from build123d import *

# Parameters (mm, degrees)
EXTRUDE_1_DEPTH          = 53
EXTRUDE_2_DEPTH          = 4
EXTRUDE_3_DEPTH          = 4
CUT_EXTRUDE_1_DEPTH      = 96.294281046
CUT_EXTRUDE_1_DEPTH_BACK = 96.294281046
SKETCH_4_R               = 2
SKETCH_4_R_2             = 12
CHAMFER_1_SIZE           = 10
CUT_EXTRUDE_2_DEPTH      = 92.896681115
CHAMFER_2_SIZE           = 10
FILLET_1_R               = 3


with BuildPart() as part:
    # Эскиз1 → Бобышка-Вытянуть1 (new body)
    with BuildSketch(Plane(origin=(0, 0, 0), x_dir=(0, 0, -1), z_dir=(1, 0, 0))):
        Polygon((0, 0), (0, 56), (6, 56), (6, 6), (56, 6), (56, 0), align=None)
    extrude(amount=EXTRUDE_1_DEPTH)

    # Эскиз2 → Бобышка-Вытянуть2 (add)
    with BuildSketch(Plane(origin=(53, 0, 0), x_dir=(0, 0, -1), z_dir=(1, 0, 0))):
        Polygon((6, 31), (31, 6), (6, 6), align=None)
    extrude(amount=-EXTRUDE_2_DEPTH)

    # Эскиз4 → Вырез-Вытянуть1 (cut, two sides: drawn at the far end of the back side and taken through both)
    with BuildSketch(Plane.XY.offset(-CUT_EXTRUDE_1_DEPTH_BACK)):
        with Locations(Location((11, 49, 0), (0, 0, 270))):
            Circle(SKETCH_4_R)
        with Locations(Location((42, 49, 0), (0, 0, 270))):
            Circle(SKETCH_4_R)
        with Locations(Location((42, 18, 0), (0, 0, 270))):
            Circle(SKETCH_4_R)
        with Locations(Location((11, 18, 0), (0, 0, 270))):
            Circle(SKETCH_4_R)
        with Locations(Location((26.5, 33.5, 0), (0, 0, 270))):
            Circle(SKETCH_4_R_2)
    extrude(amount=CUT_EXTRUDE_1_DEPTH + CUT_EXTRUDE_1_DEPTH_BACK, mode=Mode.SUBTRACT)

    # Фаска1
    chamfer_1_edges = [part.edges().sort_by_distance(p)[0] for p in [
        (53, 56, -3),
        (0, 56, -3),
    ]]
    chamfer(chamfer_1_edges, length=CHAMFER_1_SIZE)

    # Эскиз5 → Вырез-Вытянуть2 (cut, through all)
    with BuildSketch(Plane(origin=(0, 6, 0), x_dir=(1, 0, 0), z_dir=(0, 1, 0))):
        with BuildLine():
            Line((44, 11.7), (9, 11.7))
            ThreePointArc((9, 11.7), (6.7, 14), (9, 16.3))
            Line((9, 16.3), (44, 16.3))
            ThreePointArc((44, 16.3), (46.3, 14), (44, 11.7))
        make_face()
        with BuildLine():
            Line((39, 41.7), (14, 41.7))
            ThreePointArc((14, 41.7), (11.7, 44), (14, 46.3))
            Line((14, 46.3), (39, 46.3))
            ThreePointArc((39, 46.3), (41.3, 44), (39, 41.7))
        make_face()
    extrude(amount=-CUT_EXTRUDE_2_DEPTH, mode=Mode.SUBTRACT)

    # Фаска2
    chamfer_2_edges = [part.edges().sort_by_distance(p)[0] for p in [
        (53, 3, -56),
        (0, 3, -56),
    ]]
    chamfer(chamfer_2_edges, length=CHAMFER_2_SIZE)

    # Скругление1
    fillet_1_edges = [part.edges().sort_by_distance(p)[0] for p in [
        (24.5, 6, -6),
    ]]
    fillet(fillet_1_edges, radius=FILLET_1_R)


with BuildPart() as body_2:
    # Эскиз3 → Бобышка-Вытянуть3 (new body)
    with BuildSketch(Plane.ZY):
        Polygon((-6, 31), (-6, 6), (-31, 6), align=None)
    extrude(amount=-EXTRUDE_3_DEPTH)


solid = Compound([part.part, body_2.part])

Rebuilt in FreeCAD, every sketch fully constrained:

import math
import FreeCAD as App
import Part
import Sketcher

V = App.Vector
Q = App.Units.Quantity


def edges_at(feature, points):
    """Names of the edges that pass closest to the given points."""
    edges = feature.Shape.Edges
    near = lambda p: min(range(len(edges)), key=lambda i: edges[i].distToShape(Part.Vertex(*p))[0])
    return sorted({f"Edge{near(p) + 1}" for p in points})


def add_polygon(sketch, points):
    """Adds a closed chain of lines whose ends are joined by coincident constraints."""
    first, n = sketch.GeometryCount, len(points)
    for a, b in zip(points, points[1:] + points[:1]):
        sketch.addGeometry(Part.LineSegment(App.Vector(*a, 0), App.Vector(*b, 0)), False)
    for i in range(n):
        sketch.addConstraint(Sketcher.Constraint("Coincident", first + i, 2, first + (i + 1) % n, 1))

doc = App.newDocument("Part")
body = doc.addObject("PartDesign::Body", "Body")

sketch1 = body.newObject("Sketcher::SketchObject", "Sketch")
sketch1.AttachmentSupport = (doc.getObject("YZ_Plane"), [""])
sketch1.MapMode = "FlatFace"
add_polygon(sketch1, [(56, 0), (0, 0), (0, -56), (6, -56), (6, -6), (56, -6)])
sketch1.addConstraint([
    Sketcher.Constraint("Horizontal", 0),
    Sketcher.Constraint("Vertical", 1),
    Sketcher.Constraint("Horizontal", 2),
    Sketcher.Constraint("Vertical", 3),
    Sketcher.Constraint("Horizontal", 4),
    Sketcher.Constraint("Vertical", 5),
    Sketcher.Constraint("Coincident", 0, 2, -1, 1),
    Sketcher.Constraint("Equal", 0, 1),
    Sketcher.Constraint("Equal", 4, 3),
    Sketcher.Constraint("DistanceX", 0, 2, 0, 1, Q("56 mm")),
    Sketcher.Constraint("DistanceX", 2, 1, 2, 2, Q("6 mm")),
])
pad1 = body.newObject("PartDesign::Pad", "Pad")
pad1.Profile = sketch1
pad1.Length = 53

sketch2 = body.newObject("Sketcher::SketchObject", "Sketch001")
sketch2.AttachmentSupport = (doc.getObject("YZ_Plane"), [""])
sketch2.MapMode = "FlatFace"
sketch2.AttachmentOffset = App.Placement(V(0, 0, 53), App.Rotation())
add_polygon(sketch2, [(6, -31), (31, -6), (6, -6)])
sketch2.addConstraint([
    Sketcher.Constraint("Horizontal", 1),
    Sketcher.Constraint("Vertical", 2),
    Sketcher.Constraint("Equal", 1, 2),
    Sketcher.Constraint("DistanceX", 1, 2, 1, 1, Q("25 mm")),
    Sketcher.Constraint("DistanceX", -1, 1, 0, 2, Q("31 mm")),
    Sketcher.Constraint("DistanceY", 0, 2, -1, 1, Q("6 mm")),
])
pad2 = body.newObject("PartDesign::Pad", "Pad001")
pad2.Profile = sketch2
pad2.Length = 4
pad2.Reversed = True

sketch3 = body.newObject("Sketcher::SketchObject", "Sketch002")
sketch3.AttachmentSupport = (doc.getObject("XY_Plane"), [""])
sketch3.MapMode = "FlatFace"
sketch3.addGeometry([
    Part.Circle(V(11, 49, 0), V(0, 0, 1), 2),
    Part.Circle(V(42, 49, 0), V(0, 0, 1), 2),
    Part.Circle(V(42, 18, 0), V(0, 0, 1), 2),
    Part.Circle(V(11, 18, 0), V(0, 0, 1), 2),
    Part.Circle(V(26.5, 33.5, 0), V(0, 0, 1), 12),
], False)
sketch3.addConstraint([
    Sketcher.Constraint("Equal", 0, 1),
    Sketcher.Constraint("Equal", 1, 2),
    Sketcher.Constraint("Equal", 2, 3),
    Sketcher.Constraint("Horizontal", 0, 3, 1, 3),
    Sketcher.Constraint("Horizontal", 2, 3, 3, 3),
    Sketcher.Constraint("Vertical", 1, 3, 2, 3),
    Sketcher.Constraint("Vertical", 0, 3, 3, 3),
    Sketcher.Constraint("Diameter", 0, Q("4 mm")),
    Sketcher.Constraint("Diameter", 4, Q("24 mm")),
    Sketcher.Constraint("DistanceX", -1, 1, 0, 3, Q("11 mm")),
    Sketcher.Constraint("DistanceY", -1, 1, 0, 3, Q("49 mm")),
    Sketcher.Constraint("DistanceX", -1, 1, 1, 3, Q("42 mm")),
    Sketcher.Constraint("DistanceY", -1, 1, 2, 3, Q("18 mm")),
    Sketcher.Constraint("DistanceX", -1, 1, 4, 3, Q("26.5 mm")),
    Sketcher.Constraint("DistanceY", -1, 1, 4, 3, Q("33.5 mm")),
])
pocket1 = body.newObject("PartDesign::Pocket", "Pocket")
pocket1.Profile = sketch3
pocket1.Type = "ThroughAll"
pocket1.Midplane = True
doc.recompute()

chamfer = body.newObject("PartDesign::Chamfer", "Chamfer")
chamfer.Base = (pocket1, edges_at(pocket1, [(53, 56, -3), (0, 56, -3)]))
chamfer.Size = 10

sketch4 = body.newObject("Sketcher::SketchObject", "Sketch003")
sketch4.AttachmentSupport = (doc.getObject("XZ_Plane"), [""])
sketch4.MapMode = "FlatFace"
sketch4.AttachmentOffset = App.Placement(V(0, 0, -6), App.Rotation())
sketch4.addGeometry([
    Part.LineSegment(V(9, -11.7, 0), V(44, -11.7, 0)),
    Part.ArcOfCircle(Part.Circle(V(44, -14, 0), V(0, 0, 1), 2.3), math.radians(-90), math.radians(90)),
    Part.LineSegment(V(44, -16.3, 0), V(9, -16.3, 0)),
    Part.ArcOfCircle(Part.Circle(V(9, -14, 0), V(0, 0, 1), 2.3), math.radians(90), math.radians(270)),
    Part.LineSegment(V(14, -41.7, 0), V(39, -41.7, 0)),
    Part.ArcOfCircle(Part.Circle(V(39, -44, 0), V(0, 0, 1), 2.3), math.radians(-90), math.radians(90)),
    Part.LineSegment(V(39, -46.3, 0), V(14, -46.3, 0)),
    Part.ArcOfCircle(Part.Circle(V(14, -44, 0), V(0, 0, 1), 2.3), math.radians(90), math.radians(270)),
], False)
sketch4.addConstraint([
    Sketcher.Constraint("Tangent", 0, 2, 1, 2),
    Sketcher.Constraint("Tangent", 1, 1, 2, 1),
    Sketcher.Constraint("Tangent", 2, 2, 3, 2),
    Sketcher.Constraint("Tangent", 3, 1, 0, 1),
    Sketcher.Constraint("Tangent", 4, 2, 5, 2),
    Sketcher.Constraint("Tangent", 5, 1, 6, 1),
    Sketcher.Constraint("Tangent", 6, 2, 7, 2),
    Sketcher.Constraint("Tangent", 7, 1, 4, 1),
    Sketcher.Constraint("Horizontal", 0),
    Sketcher.Constraint("Horizontal", 2),
    Sketcher.Constraint("Horizontal", 4),
    Sketcher.Constraint("Horizontal", 6),
    Sketcher.Constraint("Equal", 3, 5),
    Sketcher.Constraint("Radius", 1, Q("2.3 mm")),
    Sketcher.Constraint("DistanceX", 0, 1, 0, 2, Q("35 mm")),
    Sketcher.Constraint("DistanceX", 4, 1, 4, 2, Q("25 mm")),
    Sketcher.Constraint("DistanceX", -1, 1, 1, 3, Q("44 mm")),
    Sketcher.Constraint("DistanceY", 1, 3, -1, 1, Q("14 mm")),
    Sketcher.Constraint("DistanceX", -1, 1, 5, 3, Q("39 mm")),
    Sketcher.Constraint("DistanceY", 5, 3, -1, 1, Q("44 mm")),
])
pocket2 = body.newObject("PartDesign::Pocket", "Pocket001")
pocket2.Profile = sketch4
pocket2.Type = "ThroughAll"
pocket2.Reversed = True
doc.recompute()

chamfer2 = body.newObject("PartDesign::Chamfer", "Chamfer001")
chamfer2.Base = (pocket2, edges_at(pocket2, [(53, 3, -56), (0, 3, -56)]))
chamfer2.Size = 10
doc.recompute()

fillet = body.newObject("PartDesign::Fillet", "Fillet")
fillet.Base = (chamfer2, edges_at(chamfer2, [(24.5, 6, -6)]))
fillet.Radius = 3
body2 = doc.addObject("PartDesign::Body", "Body001")

sketch5 = body2.newObject("Sketcher::SketchObject", "Sketch004")
sketch5.AttachmentSupport = (doc.getObject("YZ_Plane001"), [""])
sketch5.MapMode = "FlatFace"
add_polygon(sketch5, [(6, -6), (31, -6), (6, -31)])
sketch5.addConstraint([
    Sketcher.Constraint("Horizontal", 0),
    Sketcher.Constraint("Vertical", 2),
    Sketcher.Constraint("Equal", 0, 2),
    Sketcher.Constraint("DistanceX", 0, 1, 0, 2, Q("25 mm")),
    Sketcher.Constraint("DistanceX", -1, 1, 0, 2, Q("31 mm")),
    Sketcher.Constraint("DistanceY", 0, 2, -1, 1, Q("6 mm")),
])
pad3 = body2.newObject("PartDesign::Pad", "Pad002")
pad3.Profile = sketch5
pad3.Length = 4

doc.recompute()
